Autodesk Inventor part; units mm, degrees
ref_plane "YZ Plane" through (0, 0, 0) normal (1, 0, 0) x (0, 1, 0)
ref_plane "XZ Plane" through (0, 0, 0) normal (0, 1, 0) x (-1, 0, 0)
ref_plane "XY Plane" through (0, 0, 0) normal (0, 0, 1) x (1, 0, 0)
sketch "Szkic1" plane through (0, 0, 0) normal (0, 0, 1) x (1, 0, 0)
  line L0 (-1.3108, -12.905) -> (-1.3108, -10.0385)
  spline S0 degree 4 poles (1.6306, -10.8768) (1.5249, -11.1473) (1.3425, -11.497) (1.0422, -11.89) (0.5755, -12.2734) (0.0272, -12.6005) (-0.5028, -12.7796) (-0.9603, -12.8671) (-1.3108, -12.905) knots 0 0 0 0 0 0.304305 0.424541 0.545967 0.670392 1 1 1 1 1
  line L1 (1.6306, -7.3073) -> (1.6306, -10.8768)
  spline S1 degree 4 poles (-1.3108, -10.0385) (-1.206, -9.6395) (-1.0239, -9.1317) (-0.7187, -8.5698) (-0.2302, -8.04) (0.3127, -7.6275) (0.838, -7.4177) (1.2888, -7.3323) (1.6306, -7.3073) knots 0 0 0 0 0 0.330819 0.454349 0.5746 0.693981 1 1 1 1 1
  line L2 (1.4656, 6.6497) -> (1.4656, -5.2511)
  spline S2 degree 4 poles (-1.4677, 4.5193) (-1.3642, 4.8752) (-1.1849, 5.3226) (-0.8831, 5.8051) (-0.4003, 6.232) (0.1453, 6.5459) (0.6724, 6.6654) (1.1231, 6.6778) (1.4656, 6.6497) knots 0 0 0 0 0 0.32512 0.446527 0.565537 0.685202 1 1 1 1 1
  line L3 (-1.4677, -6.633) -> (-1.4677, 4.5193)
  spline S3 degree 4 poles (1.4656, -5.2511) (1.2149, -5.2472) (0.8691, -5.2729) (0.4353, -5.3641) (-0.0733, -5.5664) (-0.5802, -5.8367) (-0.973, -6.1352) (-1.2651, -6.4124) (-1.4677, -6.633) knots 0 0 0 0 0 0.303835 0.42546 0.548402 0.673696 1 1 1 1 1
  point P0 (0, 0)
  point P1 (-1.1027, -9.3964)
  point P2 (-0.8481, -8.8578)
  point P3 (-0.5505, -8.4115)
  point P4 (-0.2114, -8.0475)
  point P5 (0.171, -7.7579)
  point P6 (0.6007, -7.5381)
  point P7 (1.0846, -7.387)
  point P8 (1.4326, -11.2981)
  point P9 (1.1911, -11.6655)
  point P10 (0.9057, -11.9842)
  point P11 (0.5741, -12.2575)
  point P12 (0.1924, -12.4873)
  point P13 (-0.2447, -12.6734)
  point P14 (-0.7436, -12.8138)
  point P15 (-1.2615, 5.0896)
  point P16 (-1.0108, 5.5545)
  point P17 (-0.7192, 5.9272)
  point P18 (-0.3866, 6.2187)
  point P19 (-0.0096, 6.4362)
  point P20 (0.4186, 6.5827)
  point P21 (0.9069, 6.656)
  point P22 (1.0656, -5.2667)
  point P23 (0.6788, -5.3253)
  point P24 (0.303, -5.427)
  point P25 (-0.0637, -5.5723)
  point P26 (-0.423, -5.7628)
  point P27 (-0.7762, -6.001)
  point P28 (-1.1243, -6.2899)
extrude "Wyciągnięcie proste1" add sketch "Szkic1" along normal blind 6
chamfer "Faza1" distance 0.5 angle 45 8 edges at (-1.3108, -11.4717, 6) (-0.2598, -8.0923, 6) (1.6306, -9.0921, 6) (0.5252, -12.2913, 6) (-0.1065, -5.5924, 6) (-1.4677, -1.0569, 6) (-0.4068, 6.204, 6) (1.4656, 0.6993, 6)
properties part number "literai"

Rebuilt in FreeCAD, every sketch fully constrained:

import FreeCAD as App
import Part
import Sketcher


def edges_at(feature, points):
    """Names of the edges that pass closest to the given points."""
    edges = feature.Shape.Edges
    near = lambda p: min(range(len(edges)), key=lambda i: edges[i].distToShape(Part.Vertex(*p))[0])
    return sorted({f"Edge{near(p) + 1}" for p in points})

doc = App.newDocument("Part")
params = doc.addObject("Spreadsheet::Sheet", "Params")
for row, (alias, value) in enumerate([
    ("pad1_length", "6 mm"),
    ("chamfer_size", "0.5 mm"),
], start=1):
    params.set(f"A{row}", alias)
    params.set(f"B{row}", "=" + value)
    params.setAlias(f"B{row}", alias)

body = doc.addObject("PartDesign::Body", "Body")
body.AllowCompound = True

# Sketch on XY plane
sketch1 = body.newObject("Sketcher::SketchObject", "Sketch")
sketch1.AttachmentSupport = (doc.getObject("XY_Plane"), [""])
sketch1.MapMode = "FlatFace"
sketch1.addGeometry([
    Part.LineSegment(App.Vector(-1.3108, -10.0385, 0), App.Vector(-1.3108, -12.905, 0)),  # 0
    Part.BSplineCurve([App.Vector(1.6306, -10.8768, 0), App.Vector(1.5249, -11.1473, 0), App.Vector(1.3425, -11.497, 0), App.Vector(1.0422, -11.89, 0), App.Vector(0.5755, -12.2734, 0), App.Vector(0.0272, -12.6005, 0), App.Vector(-0.5028, -12.7796, 0), App.Vector(-0.9603, -12.8671, 0), App.Vector(-1.3108, -12.905, 0)], [5, 1, 1, 1, 1, 5], [0, 0.304305, 0.424541, 0.545967, 0.670392, 1], False, 4, [1, 1, 1, 1, 1, 1, 1, 1, 1], False),  # 1
    Part.LineSegment(App.Vector(1.6306, -10.8768, 0), App.Vector(1.6306, -7.3073, 0)),  # 2
    Part.BSplineCurve([App.Vector(-1.3108, -10.0385, 0), App.Vector(-1.206, -9.6395, 0), App.Vector(-1.0239, -9.1317, 0), App.Vector(-0.7187, -8.5698, 0), App.Vector(-0.2302, -8.04, 0), App.Vector(0.3127, -7.6275, 0), App.Vector(0.838, -7.4177, 0), App.Vector(1.2888, -7.3323, 0), App.Vector(1.6306, -7.3073, 0)], [5, 1, 1, 1, 1, 5], [0, 0.330819, 0.454349, 0.5746, 0.693981, 1], False, 4, [1, 1, 1, 1, 1, 1, 1, 1, 1], False),  # 3
    Part.LineSegment(App.Vector(1.4656, -5.2511, 0), App.Vector(1.4656, 6.6497, 0)),  # 4
    Part.BSplineCurve([App.Vector(-1.4677, 4.5193, 0), App.Vector(-1.3642, 4.8752, 0), App.Vector(-1.1849, 5.3226, 0), App.Vector(-0.8831, 5.8051, 0), App.Vector(-0.4003, 6.232, 0), App.Vector(0.1453, 6.5459, 0), App.Vector(0.6724, 6.6654, 0), App.Vector(1.1231, 6.6778, 0), App.Vector(1.4656, 6.6497, 0)], [5, 1, 1, 1, 1, 5], [0, 0.32512, 0.446527, 0.565537, 0.685202, 1], False, 4, [1, 1, 1, 1, 1, 1, 1, 1, 1], False),  # 5
    Part.LineSegment(App.Vector(-1.4677, 4.5193, 0), App.Vector(-1.4677, -6.633, 0)),  # 6
    Part.BSplineCurve([App.Vector(1.4656, -5.2511, 0), App.Vector(1.2149, -5.2472, 0), App.Vector(0.8691, -5.2729, 0), App.Vector(0.4353, -5.3641, 0), App.Vector(-0.0733, -5.5664, 0), App.Vector(-0.5802, -5.8367, 0), App.Vector(-0.973, -6.1352, 0), App.Vector(-1.2651, -6.4124, 0), App.Vector(-1.4677, -6.633, 0)], [5, 1, 1, 1, 1, 5], [0, 0.303835, 0.42546, 0.548402, 0.673696, 1], False, 4, [1, 1, 1, 1, 1, 1, 1, 1, 1], False),  # 7
], False)
sketch1.addConstraint([
    Sketcher.Constraint("Block", 1),
    Sketcher.Constraint("Block", 3),
    Sketcher.Constraint("Block", 5),
    Sketcher.Constraint("Block", 7),
    Sketcher.Constraint("Coincident", 0, 2, 1, 2),
    Sketcher.Constraint("Coincident", 1, 1, 2, 1),
    Sketcher.Constraint("Coincident", 2, 2, 3, 2),
    Sketcher.Constraint("Coincident", 3, 1, 0, 1),
    Sketcher.Constraint("Coincident", 4, 2, 5, 2),
    Sketcher.Constraint("Coincident", 5, 1, 6, 1),
    Sketcher.Constraint("Coincident", 6, 2, 7, 2),
    Sketcher.Constraint("Coincident", 7, 1, 4, 1),
])
pad1 = body.newObject("PartDesign::Pad", "Pad")
pad1.Profile = sketch1
pad1.setExpression("Length", "Params.pad1_length")
doc.recompute()

chamfer = body.newObject("PartDesign::Chamfer", "Chamfer")
chamfer.Base = (pad1, edges_at(pad1, [
    (-1.311, -11.472, 6),
    (-0.26, -8.092, 6),
    (1.631, -9.092, 6),
    (0.525, -12.291, 6),
    (-0.106, -5.592, 6),
    (-1.468, -1.057, 6),
    (-0.407, 6.204, 6),
    (1.466, 0.699, 6),
]))
chamfer.setExpression("Size", "Params.chamfer_size")

doc.recompute()
